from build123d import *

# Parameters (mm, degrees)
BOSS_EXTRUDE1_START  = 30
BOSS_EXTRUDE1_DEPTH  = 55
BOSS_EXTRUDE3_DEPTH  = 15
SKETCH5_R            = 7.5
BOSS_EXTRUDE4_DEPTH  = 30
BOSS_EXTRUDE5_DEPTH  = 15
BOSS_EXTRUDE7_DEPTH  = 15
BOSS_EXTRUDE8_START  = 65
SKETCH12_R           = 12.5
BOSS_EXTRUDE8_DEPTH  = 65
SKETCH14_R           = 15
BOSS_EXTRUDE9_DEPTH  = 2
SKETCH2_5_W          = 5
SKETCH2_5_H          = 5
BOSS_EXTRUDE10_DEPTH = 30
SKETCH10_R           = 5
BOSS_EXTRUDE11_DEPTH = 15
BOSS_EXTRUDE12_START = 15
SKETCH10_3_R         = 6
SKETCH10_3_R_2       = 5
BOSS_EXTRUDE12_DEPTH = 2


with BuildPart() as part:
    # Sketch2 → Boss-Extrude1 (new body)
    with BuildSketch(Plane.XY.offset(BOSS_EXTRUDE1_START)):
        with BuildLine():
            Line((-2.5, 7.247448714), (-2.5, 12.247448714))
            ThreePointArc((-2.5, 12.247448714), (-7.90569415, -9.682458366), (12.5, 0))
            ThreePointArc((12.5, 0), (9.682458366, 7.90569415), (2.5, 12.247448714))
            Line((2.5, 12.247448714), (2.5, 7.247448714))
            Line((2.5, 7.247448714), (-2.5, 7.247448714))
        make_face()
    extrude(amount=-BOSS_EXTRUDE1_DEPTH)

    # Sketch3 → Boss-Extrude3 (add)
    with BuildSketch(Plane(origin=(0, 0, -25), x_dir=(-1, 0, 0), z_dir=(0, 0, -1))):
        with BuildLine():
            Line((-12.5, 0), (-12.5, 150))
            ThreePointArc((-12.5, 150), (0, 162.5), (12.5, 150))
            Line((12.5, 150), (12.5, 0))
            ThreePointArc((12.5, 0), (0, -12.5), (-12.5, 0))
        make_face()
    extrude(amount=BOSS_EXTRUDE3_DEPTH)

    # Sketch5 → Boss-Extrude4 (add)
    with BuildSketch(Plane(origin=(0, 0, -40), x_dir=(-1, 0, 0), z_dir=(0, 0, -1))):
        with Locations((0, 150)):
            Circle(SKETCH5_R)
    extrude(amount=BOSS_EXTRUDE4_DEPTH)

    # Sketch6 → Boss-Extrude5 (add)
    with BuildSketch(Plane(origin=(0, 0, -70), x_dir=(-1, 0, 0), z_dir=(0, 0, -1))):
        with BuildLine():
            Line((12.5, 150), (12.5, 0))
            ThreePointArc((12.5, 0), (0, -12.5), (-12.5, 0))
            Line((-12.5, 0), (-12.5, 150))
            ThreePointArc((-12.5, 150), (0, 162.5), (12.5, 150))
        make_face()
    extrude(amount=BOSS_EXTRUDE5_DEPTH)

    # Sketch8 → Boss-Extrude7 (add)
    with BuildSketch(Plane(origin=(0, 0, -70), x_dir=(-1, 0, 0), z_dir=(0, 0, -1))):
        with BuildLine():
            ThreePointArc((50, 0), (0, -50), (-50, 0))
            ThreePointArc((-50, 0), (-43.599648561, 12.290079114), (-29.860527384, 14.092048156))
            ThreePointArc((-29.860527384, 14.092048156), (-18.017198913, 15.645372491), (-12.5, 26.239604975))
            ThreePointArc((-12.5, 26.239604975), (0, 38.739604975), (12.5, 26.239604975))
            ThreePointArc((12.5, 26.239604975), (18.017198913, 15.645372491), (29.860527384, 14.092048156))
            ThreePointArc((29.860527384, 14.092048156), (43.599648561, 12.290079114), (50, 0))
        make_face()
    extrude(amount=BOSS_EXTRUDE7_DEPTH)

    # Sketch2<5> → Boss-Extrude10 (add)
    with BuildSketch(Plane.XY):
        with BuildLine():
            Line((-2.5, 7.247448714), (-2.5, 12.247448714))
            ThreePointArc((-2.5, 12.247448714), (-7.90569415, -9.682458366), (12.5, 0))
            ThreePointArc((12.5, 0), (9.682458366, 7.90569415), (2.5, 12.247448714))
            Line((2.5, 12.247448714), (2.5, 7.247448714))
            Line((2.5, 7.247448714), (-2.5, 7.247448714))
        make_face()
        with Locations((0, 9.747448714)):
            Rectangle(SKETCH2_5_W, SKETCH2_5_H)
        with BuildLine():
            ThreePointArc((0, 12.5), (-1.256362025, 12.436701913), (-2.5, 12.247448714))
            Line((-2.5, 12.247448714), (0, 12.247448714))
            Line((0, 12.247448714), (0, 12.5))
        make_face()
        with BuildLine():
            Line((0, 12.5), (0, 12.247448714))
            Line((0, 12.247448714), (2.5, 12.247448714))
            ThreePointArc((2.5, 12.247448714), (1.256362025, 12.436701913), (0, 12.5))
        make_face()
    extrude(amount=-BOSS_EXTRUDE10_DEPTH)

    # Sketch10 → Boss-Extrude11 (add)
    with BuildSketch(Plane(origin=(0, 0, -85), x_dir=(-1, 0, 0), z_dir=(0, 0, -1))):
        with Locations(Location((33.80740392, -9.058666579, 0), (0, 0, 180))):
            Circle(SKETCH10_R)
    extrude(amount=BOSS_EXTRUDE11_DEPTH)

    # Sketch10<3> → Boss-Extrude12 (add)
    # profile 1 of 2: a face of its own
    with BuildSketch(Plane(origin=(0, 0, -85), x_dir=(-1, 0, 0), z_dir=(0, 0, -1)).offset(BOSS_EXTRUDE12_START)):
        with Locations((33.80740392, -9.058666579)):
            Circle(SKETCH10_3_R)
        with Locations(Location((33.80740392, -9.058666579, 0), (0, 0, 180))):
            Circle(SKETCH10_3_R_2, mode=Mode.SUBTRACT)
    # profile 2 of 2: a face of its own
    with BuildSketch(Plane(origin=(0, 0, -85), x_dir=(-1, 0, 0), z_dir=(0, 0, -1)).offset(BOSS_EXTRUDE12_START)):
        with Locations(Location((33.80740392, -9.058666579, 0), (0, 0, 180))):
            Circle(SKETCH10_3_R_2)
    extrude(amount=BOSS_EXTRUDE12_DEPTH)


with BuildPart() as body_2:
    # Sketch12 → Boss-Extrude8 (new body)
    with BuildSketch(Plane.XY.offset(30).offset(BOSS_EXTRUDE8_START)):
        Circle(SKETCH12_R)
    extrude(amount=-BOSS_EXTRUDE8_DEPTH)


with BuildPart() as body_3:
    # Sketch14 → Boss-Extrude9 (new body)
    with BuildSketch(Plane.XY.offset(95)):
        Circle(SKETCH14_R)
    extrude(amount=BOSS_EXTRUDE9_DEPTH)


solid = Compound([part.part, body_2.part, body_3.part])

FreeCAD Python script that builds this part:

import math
import FreeCAD as App
import Part
import Sketcher

doc = App.newDocument("Part")
body = doc.addObject("PartDesign::Body", "Body")

# Sketch on XY plane
sketch1 = doc.addObject("Sketcher::SketchObject", "Sketch")
body.addObject(sketch1)
sketch1.AttachmentSupport = (doc.XY_Plane, [""])
sketch1.MapMode = "FlatFace"
sketch1.AttachmentOffset = App.Placement(App.Vector(0, 0, 30), App.Rotation())
sketch1.addGeometry([
    Part.LineSegment(App.Vector(-2, 7, 0), App.Vector(-2, 12, 0)),  # 0
    Part.ArcOfCircle(Part.Circle(App.Vector(0, 0, 0), App.Vector(0, 0, 1), 12), math.radians(102), math.radians(360)),  # 1
    Part.ArcOfCircle(Part.Circle(App.Vector(0, 0, 0), App.Vector(0, 0, 1), 12), math.radians(0), math.radians(78)),  # 2
    Part.LineSegment(App.Vector(2, 12, 0), App.Vector(2, 7, 0)),  # 3
    Part.LineSegment(App.Vector(2, 7, 0), App.Vector(-2, 7, 0)),  # 4
], False)
sketch1.addConstraint([
    Sketcher.Constraint("Coincident", 0, 2, 1, 1),
    Sketcher.Constraint("Tangent", 1, 2, 2, 1),
    Sketcher.Constraint("Coincident", 2, 2, 3, 1),
    Sketcher.Constraint("Coincident", 3, 2, 4, 1),
    Sketcher.Constraint("Coincident", 4, 2, 0, 1),
    Sketcher.Constraint("Vertical", 0),
    Sketcher.Constraint("Vertical", 3),
    Sketcher.Constraint("Horizontal", 4),
    Sketcher.Constraint("Coincident", 1, 3, -1, 1),
    Sketcher.Constraint("Equal", 1, 2),
    Sketcher.Constraint("PointOnObject", 1, 2, -1),
    Sketcher.Constraint("Horizontal", 0, 2, 2, 2),
    Sketcher.Constraint("Equal", 4, 0),
    Sketcher.Constraint("Radius", 1, 12.5),
    Sketcher.Constraint("DistanceX", 4, 2, 4, 1, 5.0),
])
pad1 = doc.addObject("PartDesign::Pad", "Pad")
body.addObject(pad1)
pad1.Profile = sketch1
pad1.Length = 55
pad1.Reversed = True

# Sketch on XY plane
sketch2 = doc.addObject("Sketcher::SketchObject", "Sketch001")
body.addObject(sketch2)
sketch2.AttachmentSupport = (doc.XY_Plane, [""])
sketch2.MapMode = "FlatFace"
sketch2.AttachmentOffset = App.Placement(App.Vector(0, 0, -25), App.Rotation())
sketch2.addGeometry([
    Part.LineSegment(App.Vector(12, 150, 0), App.Vector(12, 0, 0)),
    Part.ArcOfCircle(Part.Circle(App.Vector(0, 0, 0), App.Vector(0, 0, 1), 12), math.radians(180), math.radians(360)),
    Part.LineSegment(App.Vector(-12, 0, 0), App.Vector(-12, 150, 0)),
    Part.ArcOfCircle(Part.Circle(App.Vector(0, 150, 0), App.Vector(0, 0, 1), 12), math.radians(0), math.radians(180)),
], False)
sketch2.addConstraint([
    Sketcher.Constraint("Tangent", 0, 2, 1, 2),
    Sketcher.Constraint("Tangent", 1, 1, 2, 1),
    Sketcher.Constraint("Tangent", 2, 2, 3, 2),
    Sketcher.Constraint("Tangent", 3, 1, 0, 1),
    Sketcher.Constraint("Vertical", 0),
    Sketcher.Constraint("Vertical", 2),
    Sketcher.Constraint("Coincident", 1, 3, -1, 1),
    Sketcher.Constraint("Radius", 1, 12.5),
    Sketcher.Constraint("DistanceY", 0, 2, 0, 1, 150.0),
])
pad2 = doc.addObject("PartDesign::Pad", "Pad001")
body.addObject(pad2)
pad2.Profile = sketch2
pad2.Length = 15
pad2.Reversed = True

# Sketch on XY plane
sketch3 = doc.addObject("Sketcher::SketchObject", "Sketch002")
body.addObject(sketch3)
sketch3.AttachmentSupport = (doc.XY_Plane, [""])
sketch3.MapMode = "FlatFace"
sketch3.AttachmentOffset = App.Placement(App.Vector(0, 0, -40), App.Rotation())
sketch3.addGeometry(Part.Circle(App.Vector(0, 150, 0), App.Vector(0, 0, 1), 8), False)
sketch3.addConstraint([
    Sketcher.Constraint("PointOnObject", 0, 3, -2),
    Sketcher.Constraint("Diameter", 0, 15.0),
    Sketcher.Constraint("DistanceY", -1, 1, 0, 3, 150.0),
])
pad3 = doc.addObject("PartDesign::Pad", "Pad002")
body.addObject(pad3)
pad3.Profile = sketch3
pad3.Length = 30
pad3.Reversed = True

# Sketch on XY plane
sketch4 = doc.addObject("Sketcher::SketchObject", "Sketch003")
body.addObject(sketch4)
sketch4.AttachmentSupport = (doc.XY_Plane, [""])
sketch4.MapMode = "FlatFace"
sketch4.AttachmentOffset = App.Placement(App.Vector(0, 0, -70), App.Rotation())
sketch4.addGeometry([
    Part.LineSegment(App.Vector(-12, 0, 0), App.Vector(-12, 150, 0)),
    Part.ArcOfCircle(Part.Circle(App.Vector(0, 150, 0), App.Vector(0, 0, 1), 12), math.radians(0), math.radians(180)),
    Part.LineSegment(App.Vector(12, 150, 0), App.Vector(12, 0, 0)),
    Part.ArcOfCircle(Part.Circle(App.Vector(0, 0, 0), App.Vector(0, 0, 1), 12), math.radians(180), math.radians(360)),
], False)
sketch4.addConstraint([
    Sketcher.Constraint("Tangent", 0, 2, 1, 2),
    Sketcher.Constraint("Tangent", 1, 1, 2, 1),
    Sketcher.Constraint("Tangent", 2, 2, 3, 2),
    Sketcher.Constraint("Tangent", 3, 1, 0, 1),
    Sketcher.Constraint("Vertical", 0),
    Sketcher.Constraint("Vertical", 2),
    Sketcher.Constraint("Coincident", 3, 3, -1, 1),
    Sketcher.Constraint("Radius", 1, 12.5),
    Sketcher.Constraint("DistanceY", 0, 1, 0, 2, 150.0),
])
pad4 = doc.addObject("PartDesign::Pad", "Pad003")
body.addObject(pad4)
pad4.Profile = sketch4
pad4.Length = 15
pad4.Reversed = True

# Sketch on XY plane
sketch5 = doc.addObject("Sketcher::SketchObject", "Sketch004")
body.addObject(sketch5)
sketch5.AttachmentSupport = (doc.XY_Plane, [""])
sketch5.MapMode = "FlatFace"
sketch5.AttachmentOffset = App.Placement(App.Vector(0, 0, -70), App.Rotation())
sketch5.addGeometry([
    Part.ArcOfCircle(Part.Circle(App.Vector(0, 0, 0), App.Vector(0, 0, 1), 50), math.radians(180), math.radians(360)),  # 0
    Part.ArcOfCircle(Part.Circle(App.Vector(-35, 0, 0), App.Vector(0, 0, 1), 15), math.radians(70), math.radians(180)),  # 1
    Part.ArcOfCircle(Part.Circle(App.Vector(-25, 26, 0), App.Vector(0, 0, 1), 13), math.radians(-110), math.radians(0)),  # 2
    Part.ArcOfCircle(Part.Circle(App.Vector(0, 26, 0), App.Vector(0, 0, 1), 12), math.radians(0), math.radians(180)),  # 3
    Part.ArcOfCircle(Part.Circle(App.Vector(25, 26, 0), App.Vector(0, 0, 1), 13), math.radians(-180), math.radians(-70)),  # 4
    Part.ArcOfCircle(Part.Circle(App.Vector(35, 0, 0), App.Vector(0, 0, 1), 15), math.radians(0), math.radians(110)),  # 5
], False)
sketch5.addConstraint([
    Sketcher.Constraint("Tangent", 0, 1, 1, 2),
    Sketcher.Constraint("Tangent", 1, 1, 2, 1),
    Sketcher.Constraint("Tangent", 2, 2, 3, 2),
    Sketcher.Constraint("Tangent", 3, 1, 4, 1),
    Sketcher.Constraint("Tangent", 4, 2, 5, 2),
    Sketcher.Constraint("Tangent", 5, 1, 0, 2),
    Sketcher.Constraint("Coincident", 0, 3, -1, 1),
    Sketcher.Constraint("Equal", 2, 4),
    Sketcher.Constraint("Equal", 1, 5),
    Sketcher.Constraint("Symmetric", 2, 3, 4, 3, -2),
    Sketcher.Constraint("PointOnObject", 1, 3, -1),
    Sketcher.Constraint("Horizontal", 2, 3, 3, 3),
    Sketcher.Constraint("Radius", 0, 50.0),
    Sketcher.Constraint("Radius", 1, 15.0),
    Sketcher.Constraint("Radius", 3, 12.5),
    Sketcher.Constraint("Radius", 2, 12.930225),
])
pad5 = doc.addObject("PartDesign::Pad", "Pad004")
body.addObject(pad5)
pad5.Profile = sketch5
pad5.Length = 15
pad5.Reversed = True

# Sketch on XY plane
sketch6 = doc.addObject("Sketcher::SketchObject", "Sketch005")
body.addObject(sketch6)
sketch6.AttachmentSupport = (doc.XY_Plane, [""])
sketch6.MapMode = "FlatFace"
sketch6.addGeometry([
    Part.ArcOfCircle(Part.Circle(App.Vector(0, 0, 0), App.Vector(0, 0, 1), 12.5), math.radians(102), math.radians(360)),
    Part.ArcOfCircle(Part.Circle(App.Vector(0, 0, 0), App.Vector(0, 0, 1), 12.5), math.radians(0), math.radians(78)),
    Part.ArcOfCircle(Part.Circle(App.Vector(0, 0, 0), App.Vector(0, 0, 1), 12.5), math.radians(78.46), math.radians(90)),
    Part.ArcOfCircle(Part.Circle(App.Vector(0, 0, 0), App.Vector(0, 0, 1), 12.5), math.radians(90), math.radians(101.54)),
], False)
sketch6.addConstraint([
    Sketcher.Constraint("Tangent", 0, 2, 1, 1),
    Sketcher.Constraint("Tangent", 1, 2, 2, 1),
    Sketcher.Constraint("Tangent", 2, 2, 3, 1),
    Sketcher.Constraint("Tangent", 3, 2, 0, 1),
    Sketcher.Constraint("Coincident", 0, 3, -1, 1),
    Sketcher.Constraint("Equal", 0, 1),
    Sketcher.Constraint("PointOnObject", 0, 2, -1),
    Sketcher.Constraint("PointOnObject", 2, 2, -2),
    Sketcher.Constraint("Horizontal", 1, 2, 3, 2),
    Sketcher.Constraint("Radius", 0, 12.5),
    Sketcher.Constraint("DistanceX", 1, 2, 0, 2, 10.0),
])
pad6 = doc.addObject("PartDesign::Pad", "Pad005")
body.addObject(pad6)
pad6.Profile = sketch6
pad6.Length = 30
pad6.Reversed = True

# Sketch on XY plane
sketch7 = doc.addObject("Sketcher::SketchObject", "Sketch006")
body.addObject(sketch7)
sketch7.AttachmentSupport = (doc.XY_Plane, [""])
sketch7.MapMode = "FlatFace"
sketch7.AttachmentOffset = App.Placement(App.Vector(0, 0, -85), App.Rotation())
sketch7.addGeometry(Part.Circle(App.Vector(-34, -9, 0), App.Vector(0, 0, 1), 5), False)
sketch7.addConstraint([
    Sketcher.Constraint("Diameter", 0, 10.0),
    Sketcher.Constraint("DistanceX", 0, 3, -1, 1, 33.807404),
    Sketcher.Constraint("DistanceY", 0, 3, -1, 1, 9.058667),
])
pad7 = doc.addObject("PartDesign::Pad", "Pad006")
body.addObject(pad7)
pad7.Profile = sketch7
pad7.Length = 15
pad7.Reversed = True

# Sketch on XY plane
sketch8 = doc.addObject("Sketcher::SketchObject", "Sketch007")
body.addObject(sketch8)
sketch8.AttachmentSupport = (doc.XY_Plane, [""])
sketch8.MapMode = "FlatFace"
sketch8.AttachmentOffset = App.Placement(App.Vector(0, 0, -100), App.Rotation())
sketch8.addGeometry(Part.Circle(App.Vector(-34, -9, 0), App.Vector(0, 0, 1), 6), False)
sketch8.addConstraint([
    Sketcher.Constraint("Diameter", 0, 12.0),
    Sketcher.Constraint("DistanceX", 0, 3, -1, 1, 33.807404),
    Sketcher.Constraint("DistanceY", 0, 3, -1, 1, 9.058667),
])
pad8 = doc.addObject("PartDesign::Pad", "Pad007")
body.addObject(pad8)
pad8.Profile = sketch8
pad8.Length = 2
pad8.Reversed = True
body2 = doc.addObject("PartDesign::Body", "Body001")

# Sketch on XY plane
sketch9 = doc.addObject("Sketcher::SketchObject", "Sketch008")
body2.addObject(sketch9)
sketch9.AttachmentSupport = (doc.getObject("XY_Plane001"), [""])
sketch9.MapMode = "FlatFace"
sketch9.AttachmentOffset = App.Placement(App.Vector(0, 0, 95), App.Rotation())
sketch9.addGeometry(Part.Circle(App.Vector(0, 0, 0), App.Vector(0, 0, 1), 12), False)
sketch9.addConstraint([
    Sketcher.Constraint("Coincident", 0, 3, -1, 1),
    Sketcher.Constraint("Diameter", 0, 25.0),
])
pad9 = doc.addObject("PartDesign::Pad", "Pad008")
body2.addObject(pad9)
pad9.Profile = sketch9
pad9.Length = 65
pad9.Reversed = True
body3 = doc.addObject("PartDesign::Body", "Body002")

# Sketch on XY plane
sketch10 = doc.addObject("Sketcher::SketchObject", "Sketch009")
body3.addObject(sketch10)
sketch10.AttachmentSupport = (doc.getObject("XY_Plane002"), [""])
sketch10.MapMode = "FlatFace"
sketch10.AttachmentOffset = App.Placement(App.Vector(0, 0, 95), App.Rotation())
sketch10.addGeometry(Part.Circle(App.Vector(0, 0, 0), App.Vector(0, 0, 1), 15), False)
sketch10.addConstraint([
    Sketcher.Constraint("Coincident", 0, 3, -1, 1),
    Sketcher.Constraint("Diameter", 0, 30.0),
])
pad10 = doc.addObject("PartDesign::Pad", "Pad009")
body3.addObject(pad10)
pad10.Profile = sketch10
pad10.Length = 2

doc.recompute()
